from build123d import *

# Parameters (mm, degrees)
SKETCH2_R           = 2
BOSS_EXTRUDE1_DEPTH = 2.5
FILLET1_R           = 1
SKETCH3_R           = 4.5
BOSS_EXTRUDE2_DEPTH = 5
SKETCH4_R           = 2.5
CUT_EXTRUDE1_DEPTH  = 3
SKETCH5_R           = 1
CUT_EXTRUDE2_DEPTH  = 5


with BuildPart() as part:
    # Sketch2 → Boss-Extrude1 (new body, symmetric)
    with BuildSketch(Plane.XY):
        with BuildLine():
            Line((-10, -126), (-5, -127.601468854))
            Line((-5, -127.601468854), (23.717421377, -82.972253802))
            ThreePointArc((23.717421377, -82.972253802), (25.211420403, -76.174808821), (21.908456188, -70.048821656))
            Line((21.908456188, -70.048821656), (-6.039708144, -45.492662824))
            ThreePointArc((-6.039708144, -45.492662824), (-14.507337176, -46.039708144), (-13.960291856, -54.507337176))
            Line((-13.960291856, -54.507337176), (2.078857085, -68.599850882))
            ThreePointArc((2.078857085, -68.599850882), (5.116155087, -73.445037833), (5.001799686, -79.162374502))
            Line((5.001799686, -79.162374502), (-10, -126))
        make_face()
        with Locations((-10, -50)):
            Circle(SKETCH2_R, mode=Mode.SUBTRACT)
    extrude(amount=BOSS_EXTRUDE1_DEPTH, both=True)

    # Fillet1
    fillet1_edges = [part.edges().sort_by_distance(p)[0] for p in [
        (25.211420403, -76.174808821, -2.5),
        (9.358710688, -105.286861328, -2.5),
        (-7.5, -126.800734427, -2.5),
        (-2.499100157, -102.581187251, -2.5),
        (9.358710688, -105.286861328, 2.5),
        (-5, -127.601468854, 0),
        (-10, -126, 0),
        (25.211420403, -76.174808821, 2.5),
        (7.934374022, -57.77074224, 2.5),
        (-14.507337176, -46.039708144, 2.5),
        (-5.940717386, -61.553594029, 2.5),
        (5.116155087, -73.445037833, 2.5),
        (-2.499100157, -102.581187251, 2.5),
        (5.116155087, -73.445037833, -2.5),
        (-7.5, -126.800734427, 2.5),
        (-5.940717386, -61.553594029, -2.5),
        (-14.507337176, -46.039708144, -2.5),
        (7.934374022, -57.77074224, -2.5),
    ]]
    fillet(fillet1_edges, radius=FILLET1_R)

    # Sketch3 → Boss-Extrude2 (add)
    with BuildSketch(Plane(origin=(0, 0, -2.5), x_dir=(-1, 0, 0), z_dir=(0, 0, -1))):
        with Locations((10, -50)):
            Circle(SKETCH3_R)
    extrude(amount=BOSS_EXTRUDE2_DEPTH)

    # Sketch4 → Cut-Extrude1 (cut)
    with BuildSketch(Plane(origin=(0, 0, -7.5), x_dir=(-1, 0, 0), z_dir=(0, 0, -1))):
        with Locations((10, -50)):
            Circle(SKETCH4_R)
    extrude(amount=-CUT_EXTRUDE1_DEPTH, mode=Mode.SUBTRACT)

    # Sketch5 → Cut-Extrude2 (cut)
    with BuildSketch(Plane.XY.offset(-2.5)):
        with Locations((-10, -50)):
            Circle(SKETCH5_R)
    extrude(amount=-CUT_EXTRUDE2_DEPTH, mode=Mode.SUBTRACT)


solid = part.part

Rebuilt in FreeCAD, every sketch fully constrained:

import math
import FreeCAD as App
import Part
import Sketcher

V = App.Vector
Q = App.Units.Quantity


def edges_at(feature, points):
    """Names of the edges that pass closest to the given points."""
    edges = feature.Shape.Edges
    near = lambda p: min(range(len(edges)), key=lambda i: edges[i].distToShape(Part.Vertex(*p))[0])
    return sorted({f"Edge{near(p) + 1}" for p in points})

doc = App.newDocument("Part")
body = doc.addObject("PartDesign::Body", "Body")

# Sketch on XY plane
sketch1 = body.newObject("Sketcher::SketchObject", "Sketch")
sketch1.AttachmentSupport = (doc.getObject("XY_Plane"), [""])
sketch1.MapMode = "FlatFace"
sketch1.addGeometry([
    Part.LineSegment(V(-10, -126, 0), V(-5, -127.601469, 0)),  # 0
    Part.LineSegment(V(-5, -127.601469, 0), V(23.717421, -82.972254, 0)),  # 1
    Part.ArcOfCircle(Part.Circle(V(15.30797, -77.56105, 0), V(0, 0, 1), 10), math.radians(-32.759939), math.radians(48.696417)),  # 2
    Part.LineSegment(V(21.908456, -70.048822, 0), V(-6.039708, -45.492663, 0)),  # 3
    Part.ArcOfCircle(Part.Circle(V(-10, -50, 0), V(0, 0, 1), 6), math.radians(48.696417), math.radians(228.696417)),  # 4
    Part.LineSegment(V(-13.960292, -54.507337, 0), V(2.078857, -68.599851, 0)),  # 5
    Part.ArcOfCircle(Part.Circle(V(-4.521629, -76.11208, 0), V(0, 0, 1), 10), math.radians(-17.759939), math.radians(48.696417)),  # 6
    Part.LineSegment(V(5.0018, -79.162375, 0), V(-10, -126, 0)),  # 7
    Part.Circle(V(-10, -50, 0), V(0, 0, 1), 2),  # 8
], False)
sketch1.addConstraint([
    Sketcher.Constraint("Coincident", 0, 2, 1, 1),
    Sketcher.Constraint("Tangent", 1, 2, 2, 1),
    Sketcher.Constraint("Tangent", 2, 2, 3, 1),
    Sketcher.Constraint("Tangent", 3, 2, 4, 1),
    Sketcher.Constraint("Tangent", 4, 2, 5, 1),
    Sketcher.Constraint("Tangent", 5, 2, 6, 2),
    Sketcher.Constraint("Tangent", 6, 1, 7, 1),
    Sketcher.Constraint("Coincident", 7, 2, 0, 1),
    Sketcher.Constraint("Coincident", 8, 3, 4, 3),
    Sketcher.Constraint("Equal", 2, 6),
    Sketcher.Constraint("Parallel", 3, 5),
    Sketcher.Constraint("Perpendicular", 0, 7),
    Sketcher.Constraint("Vertical", 8, 3, 7, 2),
    Sketcher.Constraint("Diameter", 8, Q("4 mm")),
    Sketcher.Constraint("Radius", 2, Q("10 mm")),
    Sketcher.Constraint("Radius", 4, Q("6 mm")),
    Sketcher.Constraint("DistanceX", 4, 3, -1, 1, Q("10 mm")),
    Sketcher.Constraint("DistanceY", 4, 3, -1, 1, Q("50 mm")),
    Sketcher.Constraint("DistanceX", 0, 2, -1, 1, Q("5 mm")),
    Sketcher.Constraint("DistanceY", 7, 2, -1, 1, Q("126 mm")),
    Sketcher.Constraint("DistanceX", -1, 1, 6, 1, Q("5.0018 mm")),
    Sketcher.Constraint("DistanceX", 6, 3, 2, 3, Q("19.829599 mm")),
    Sketcher.Constraint("DistanceY", 2, 3, 5, 2, Q("8.961199 mm")),
])
pad1 = body.newObject("PartDesign::Pad", "Pad")
pad1.Profile = sketch1
pad1.Length = 5
pad1.Midplane = True
doc.recompute()

fillet = body.newObject("PartDesign::Fillet", "Fillet")
fillet.Base = (pad1, edges_at(pad1, [
    (25.211, -76.175, -2.5),
    (9.359, -105.287, -2.5),
    (-7.5, -126.801, -2.5),
    (-2.499, -102.581, -2.5),
    (9.359, -105.287, 2.5),
    (-5, -127.601, 0),
    (-10, -126, 0),
    (25.211, -76.175, 2.5),
    (7.934, -57.771, 2.5),
    (-14.507, -46.04, 2.5),
    (-5.941, -61.554, 2.5),
    (5.116, -73.445, 2.5),
    (-2.499, -102.581, 2.5),
    (5.116, -73.445, -2.5),
    (-7.5, -126.801, 2.5),
    (-5.941, -61.554, -2.5),
    (-14.507, -46.04, -2.5),
    (7.934, -57.771, -2.5),
]))
fillet.Radius = 1

# Sketch on XY plane
sketch2 = body.newObject("Sketcher::SketchObject", "Sketch001")
sketch2.AttachmentSupport = (doc.getObject("XY_Plane"), [""])
sketch2.MapMode = "FlatFace"
sketch2.AttachmentOffset = App.Placement(V(0, 0, -2.5), App.Rotation())
sketch2.addGeometry(Part.Circle(V(-10, -50, 0), V(0, 0, 1), 4.5), False)
sketch2.addConstraint([
    Sketcher.Constraint("Diameter", 0, Q("9 mm")),
    Sketcher.Constraint("DistanceX", 0, 3, -1, 1, Q("10 mm")),
    Sketcher.Constraint("DistanceY", 0, 3, -1, 1, Q("50 mm")),
])
pad2 = body.newObject("PartDesign::Pad", "Pad001")
pad2.Profile = sketch2
pad2.Length = 5
pad2.Reversed = True

# Sketch on XY plane
sketch3 = body.newObject("Sketcher::SketchObject", "Sketch002")
sketch3.AttachmentSupport = (doc.getObject("XY_Plane"), [""])
sketch3.MapMode = "FlatFace"
sketch3.AttachmentOffset = App.Placement(V(0, 0, -7.5), App.Rotation())
sketch3.addGeometry(Part.Circle(V(-10, -50, 0), V(0, 0, 1), 2.5), False)
sketch3.addConstraint([
    Sketcher.Constraint("Diameter", 0, Q("5 mm")),
    Sketcher.Constraint("DistanceX", 0, 3, -1, 1, Q("10 mm")),
    Sketcher.Constraint("DistanceY", 0, 3, -1, 1, Q("50 mm")),
])
pocket1 = body.newObject("PartDesign::Pocket", "Pocket")
pocket1.Profile = sketch3
pocket1.Length = 3
pocket1.Reversed = True

# Sketch on XY plane
sketch4 = body.newObject("Sketcher::SketchObject", "Sketch003")
sketch4.AttachmentSupport = (doc.getObject("XY_Plane"), [""])
sketch4.MapMode = "FlatFace"
sketch4.AttachmentOffset = App.Placement(V(0, 0, -2.5), App.Rotation())
sketch4.addGeometry(Part.Circle(V(-10, -50, 0), V(0, 0, 1), 1), False)
sketch4.addConstraint([
    Sketcher.Constraint("Diameter", 0, Q("2 mm")),
    Sketcher.Constraint("DistanceX", 0, 3, -1, 1, Q("10 mm")),
    Sketcher.Constraint("DistanceY", 0, 3, -1, 1, Q("50 mm")),
])
pocket2 = body.newObject("PartDesign::Pocket", "Pocket001")
pocket2.Profile = sketch4
pocket2.Length = 5

doc.recompute()
